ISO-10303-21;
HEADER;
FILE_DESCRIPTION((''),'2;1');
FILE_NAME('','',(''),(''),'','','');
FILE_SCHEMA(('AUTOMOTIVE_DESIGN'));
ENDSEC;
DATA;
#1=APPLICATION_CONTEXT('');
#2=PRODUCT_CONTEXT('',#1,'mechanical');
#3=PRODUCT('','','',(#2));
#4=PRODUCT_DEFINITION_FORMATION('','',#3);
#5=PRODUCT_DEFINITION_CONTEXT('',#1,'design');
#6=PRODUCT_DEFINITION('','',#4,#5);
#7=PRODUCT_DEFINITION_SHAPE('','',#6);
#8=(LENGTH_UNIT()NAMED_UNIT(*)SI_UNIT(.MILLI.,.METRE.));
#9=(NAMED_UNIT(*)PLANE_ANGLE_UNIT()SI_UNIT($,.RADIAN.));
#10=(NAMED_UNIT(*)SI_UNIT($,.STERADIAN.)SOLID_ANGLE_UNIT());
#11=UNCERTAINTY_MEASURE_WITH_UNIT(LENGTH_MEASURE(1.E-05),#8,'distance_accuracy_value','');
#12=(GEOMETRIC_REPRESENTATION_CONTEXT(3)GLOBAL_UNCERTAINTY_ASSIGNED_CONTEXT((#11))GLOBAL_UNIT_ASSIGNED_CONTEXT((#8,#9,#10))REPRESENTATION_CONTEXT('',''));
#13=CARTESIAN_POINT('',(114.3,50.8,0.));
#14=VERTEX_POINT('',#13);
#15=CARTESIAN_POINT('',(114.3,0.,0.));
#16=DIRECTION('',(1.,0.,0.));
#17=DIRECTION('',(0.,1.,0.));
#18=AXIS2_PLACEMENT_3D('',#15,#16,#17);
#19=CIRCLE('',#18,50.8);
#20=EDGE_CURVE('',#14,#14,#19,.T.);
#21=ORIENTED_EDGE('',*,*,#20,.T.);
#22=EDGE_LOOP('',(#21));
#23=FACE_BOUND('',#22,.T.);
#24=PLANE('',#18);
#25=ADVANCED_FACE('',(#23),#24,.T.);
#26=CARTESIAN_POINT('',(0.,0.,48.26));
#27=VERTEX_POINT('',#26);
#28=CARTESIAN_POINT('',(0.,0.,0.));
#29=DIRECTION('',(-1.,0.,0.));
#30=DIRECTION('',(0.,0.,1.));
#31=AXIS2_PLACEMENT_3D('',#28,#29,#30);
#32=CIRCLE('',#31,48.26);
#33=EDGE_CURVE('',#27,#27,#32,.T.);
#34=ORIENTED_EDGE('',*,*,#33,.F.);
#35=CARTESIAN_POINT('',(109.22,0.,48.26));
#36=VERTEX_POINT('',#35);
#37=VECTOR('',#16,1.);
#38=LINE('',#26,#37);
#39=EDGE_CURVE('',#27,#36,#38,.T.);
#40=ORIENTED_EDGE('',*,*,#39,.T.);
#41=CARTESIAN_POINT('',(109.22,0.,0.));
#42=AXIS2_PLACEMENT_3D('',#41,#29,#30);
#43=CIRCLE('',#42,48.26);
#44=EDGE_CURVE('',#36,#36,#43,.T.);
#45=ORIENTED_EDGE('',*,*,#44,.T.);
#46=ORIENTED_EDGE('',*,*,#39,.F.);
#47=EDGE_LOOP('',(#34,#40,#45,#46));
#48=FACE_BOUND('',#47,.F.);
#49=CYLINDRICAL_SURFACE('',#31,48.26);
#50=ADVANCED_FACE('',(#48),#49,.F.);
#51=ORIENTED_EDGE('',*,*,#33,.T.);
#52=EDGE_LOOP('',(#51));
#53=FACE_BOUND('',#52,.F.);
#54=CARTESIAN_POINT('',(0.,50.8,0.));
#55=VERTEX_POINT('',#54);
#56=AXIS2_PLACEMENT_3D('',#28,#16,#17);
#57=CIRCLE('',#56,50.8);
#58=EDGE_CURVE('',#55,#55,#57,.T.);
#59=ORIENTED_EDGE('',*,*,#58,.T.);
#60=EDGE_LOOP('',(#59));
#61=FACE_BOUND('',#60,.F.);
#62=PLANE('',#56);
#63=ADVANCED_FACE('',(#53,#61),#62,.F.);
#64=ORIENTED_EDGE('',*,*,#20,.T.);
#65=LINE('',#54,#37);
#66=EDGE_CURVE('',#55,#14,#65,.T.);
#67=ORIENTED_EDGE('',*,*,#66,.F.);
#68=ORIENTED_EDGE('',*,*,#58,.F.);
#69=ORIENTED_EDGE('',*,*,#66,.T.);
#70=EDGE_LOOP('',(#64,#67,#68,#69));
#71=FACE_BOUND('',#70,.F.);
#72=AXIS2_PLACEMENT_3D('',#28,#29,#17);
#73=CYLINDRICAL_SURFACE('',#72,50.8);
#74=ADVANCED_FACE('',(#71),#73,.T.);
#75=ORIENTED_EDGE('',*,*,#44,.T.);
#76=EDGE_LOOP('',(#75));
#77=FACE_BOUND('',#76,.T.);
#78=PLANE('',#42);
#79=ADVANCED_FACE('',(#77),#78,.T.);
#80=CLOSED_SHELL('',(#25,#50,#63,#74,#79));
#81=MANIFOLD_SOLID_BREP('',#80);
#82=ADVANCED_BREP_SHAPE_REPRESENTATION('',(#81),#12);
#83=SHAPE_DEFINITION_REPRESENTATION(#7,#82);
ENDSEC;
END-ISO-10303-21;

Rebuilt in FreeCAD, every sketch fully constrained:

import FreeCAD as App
import Part
import Sketcher

V = App.Vector
Q = App.Units.Quantity

doc = App.newDocument("Part")
body = doc.addObject("PartDesign::Body", "Body")

# Sketch on YZ plane
sketch1 = doc.addObject("Sketcher::SketchObject", "Sketch")
body.addObject(sketch1)
sketch1.AttachmentSupport = (doc.YZ_Plane, [""])
sketch1.MapMode = "FlatFace"
sketch1.addGeometry(Part.Circle(V(0, 0, 0), V(0, 0, 1), 51), False)
sketch1.addConstraint([
    Sketcher.Constraint("Coincident", 0, 3, -1, 1),
    Sketcher.Constraint("Diameter", 0, Q("4 in")),
])
pad1 = doc.addObject("PartDesign::Pad", "Pad")
body.addObject(pad1)
pad1.Profile = sketch1
pad1.Length = Q("4.5 in")

# Sketch on YZ plane
sketch2 = doc.addObject("Sketcher::SketchObject", "Sketch001")
body.addObject(sketch2)
sketch2.AttachmentSupport = (doc.YZ_Plane, [""])
sketch2.MapMode = "FlatFace"
sketch2.addGeometry(Part.Circle(V(0, 0, 0), V(0, 0, 1), 48), False)
sketch2.addConstraint([
    Sketcher.Constraint("Coincident", 0, 3, -1, 1),
    Sketcher.Constraint("Diameter", 0, Q("3.8 in")),
])
pocket1 = doc.addObject("PartDesign::Pocket", "Pocket")
body.addObject(pocket1)
pocket1.Profile = sketch2
pocket1.Length = Q("4.3 in")
pocket1.Reversed = True

doc.recompute()
